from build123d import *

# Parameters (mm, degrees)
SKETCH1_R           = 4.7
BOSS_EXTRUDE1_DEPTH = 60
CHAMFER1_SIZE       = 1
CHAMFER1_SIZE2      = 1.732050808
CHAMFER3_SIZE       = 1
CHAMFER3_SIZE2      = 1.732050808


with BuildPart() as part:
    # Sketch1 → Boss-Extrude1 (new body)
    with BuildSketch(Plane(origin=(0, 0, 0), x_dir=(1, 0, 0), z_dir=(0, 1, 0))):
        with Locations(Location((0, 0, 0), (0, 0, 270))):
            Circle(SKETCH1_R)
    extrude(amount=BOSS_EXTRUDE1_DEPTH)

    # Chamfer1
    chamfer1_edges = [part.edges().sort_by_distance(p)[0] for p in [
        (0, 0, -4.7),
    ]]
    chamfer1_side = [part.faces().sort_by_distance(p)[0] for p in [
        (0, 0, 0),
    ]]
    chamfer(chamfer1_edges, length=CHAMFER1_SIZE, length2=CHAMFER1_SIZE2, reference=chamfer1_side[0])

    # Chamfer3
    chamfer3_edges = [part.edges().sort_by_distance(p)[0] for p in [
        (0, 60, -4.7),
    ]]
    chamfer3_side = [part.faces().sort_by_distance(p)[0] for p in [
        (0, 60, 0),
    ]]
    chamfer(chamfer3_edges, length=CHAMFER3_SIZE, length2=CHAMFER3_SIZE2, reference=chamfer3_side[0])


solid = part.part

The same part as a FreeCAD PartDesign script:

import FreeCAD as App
import Part
import Sketcher

V = App.Vector


def edges_at(feature, points):
    """Names of the edges that pass closest to the given points."""
    edges = feature.Shape.Edges
    near = lambda p: min(range(len(edges)), key=lambda i: edges[i].distToShape(Part.Vertex(*p))[0])
    return sorted({f"Edge{near(p) + 1}" for p in points})

doc = App.newDocument("Part")
body = doc.addObject("PartDesign::Body", "Body")

# Sketch on XZ plane
sketch1 = body.newObject("Sketcher::SketchObject", "Sketch")
sketch1.AttachmentSupport = (doc.getObject("XZ_Plane"), [""])
sketch1.MapMode = "FlatFace"
sketch1.addGeometry(Part.Circle(V(0, 0, 0), V(0, 0, 1), 4.7), False)
sketch1.addConstraint(Sketcher.Constraint("Coincident", 0, 3, -1, 1))
sketch1.addConstraint(Sketcher.Constraint("Diameter", 0, 9.4))
pad1 = body.newObject("PartDesign::Pad", "Pad")
pad1.Profile = sketch1
pad1.Length = 60
pad1.Reversed = True
doc.recompute()

chamfer = body.newObject("PartDesign::Chamfer", "Chamfer")
chamfer.Base = (pad1, edges_at(pad1, [(0, 0, -4.7)]))
chamfer.ChamferType = "Two distances"
chamfer.Size = 1
chamfer.Size2 = 1.732051
chamfer.FlipDirection = True
doc.recompute()

chamfer2 = body.newObject("PartDesign::Chamfer", "Chamfer001")
chamfer2.Base = (chamfer, edges_at(chamfer, [(0, 60, -4.7)]))
chamfer2.ChamferType = "Two distances"
chamfer2.Size = 1
chamfer2.Size2 = 1.732051
chamfer2.FlipDirection = True

doc.recompute()
